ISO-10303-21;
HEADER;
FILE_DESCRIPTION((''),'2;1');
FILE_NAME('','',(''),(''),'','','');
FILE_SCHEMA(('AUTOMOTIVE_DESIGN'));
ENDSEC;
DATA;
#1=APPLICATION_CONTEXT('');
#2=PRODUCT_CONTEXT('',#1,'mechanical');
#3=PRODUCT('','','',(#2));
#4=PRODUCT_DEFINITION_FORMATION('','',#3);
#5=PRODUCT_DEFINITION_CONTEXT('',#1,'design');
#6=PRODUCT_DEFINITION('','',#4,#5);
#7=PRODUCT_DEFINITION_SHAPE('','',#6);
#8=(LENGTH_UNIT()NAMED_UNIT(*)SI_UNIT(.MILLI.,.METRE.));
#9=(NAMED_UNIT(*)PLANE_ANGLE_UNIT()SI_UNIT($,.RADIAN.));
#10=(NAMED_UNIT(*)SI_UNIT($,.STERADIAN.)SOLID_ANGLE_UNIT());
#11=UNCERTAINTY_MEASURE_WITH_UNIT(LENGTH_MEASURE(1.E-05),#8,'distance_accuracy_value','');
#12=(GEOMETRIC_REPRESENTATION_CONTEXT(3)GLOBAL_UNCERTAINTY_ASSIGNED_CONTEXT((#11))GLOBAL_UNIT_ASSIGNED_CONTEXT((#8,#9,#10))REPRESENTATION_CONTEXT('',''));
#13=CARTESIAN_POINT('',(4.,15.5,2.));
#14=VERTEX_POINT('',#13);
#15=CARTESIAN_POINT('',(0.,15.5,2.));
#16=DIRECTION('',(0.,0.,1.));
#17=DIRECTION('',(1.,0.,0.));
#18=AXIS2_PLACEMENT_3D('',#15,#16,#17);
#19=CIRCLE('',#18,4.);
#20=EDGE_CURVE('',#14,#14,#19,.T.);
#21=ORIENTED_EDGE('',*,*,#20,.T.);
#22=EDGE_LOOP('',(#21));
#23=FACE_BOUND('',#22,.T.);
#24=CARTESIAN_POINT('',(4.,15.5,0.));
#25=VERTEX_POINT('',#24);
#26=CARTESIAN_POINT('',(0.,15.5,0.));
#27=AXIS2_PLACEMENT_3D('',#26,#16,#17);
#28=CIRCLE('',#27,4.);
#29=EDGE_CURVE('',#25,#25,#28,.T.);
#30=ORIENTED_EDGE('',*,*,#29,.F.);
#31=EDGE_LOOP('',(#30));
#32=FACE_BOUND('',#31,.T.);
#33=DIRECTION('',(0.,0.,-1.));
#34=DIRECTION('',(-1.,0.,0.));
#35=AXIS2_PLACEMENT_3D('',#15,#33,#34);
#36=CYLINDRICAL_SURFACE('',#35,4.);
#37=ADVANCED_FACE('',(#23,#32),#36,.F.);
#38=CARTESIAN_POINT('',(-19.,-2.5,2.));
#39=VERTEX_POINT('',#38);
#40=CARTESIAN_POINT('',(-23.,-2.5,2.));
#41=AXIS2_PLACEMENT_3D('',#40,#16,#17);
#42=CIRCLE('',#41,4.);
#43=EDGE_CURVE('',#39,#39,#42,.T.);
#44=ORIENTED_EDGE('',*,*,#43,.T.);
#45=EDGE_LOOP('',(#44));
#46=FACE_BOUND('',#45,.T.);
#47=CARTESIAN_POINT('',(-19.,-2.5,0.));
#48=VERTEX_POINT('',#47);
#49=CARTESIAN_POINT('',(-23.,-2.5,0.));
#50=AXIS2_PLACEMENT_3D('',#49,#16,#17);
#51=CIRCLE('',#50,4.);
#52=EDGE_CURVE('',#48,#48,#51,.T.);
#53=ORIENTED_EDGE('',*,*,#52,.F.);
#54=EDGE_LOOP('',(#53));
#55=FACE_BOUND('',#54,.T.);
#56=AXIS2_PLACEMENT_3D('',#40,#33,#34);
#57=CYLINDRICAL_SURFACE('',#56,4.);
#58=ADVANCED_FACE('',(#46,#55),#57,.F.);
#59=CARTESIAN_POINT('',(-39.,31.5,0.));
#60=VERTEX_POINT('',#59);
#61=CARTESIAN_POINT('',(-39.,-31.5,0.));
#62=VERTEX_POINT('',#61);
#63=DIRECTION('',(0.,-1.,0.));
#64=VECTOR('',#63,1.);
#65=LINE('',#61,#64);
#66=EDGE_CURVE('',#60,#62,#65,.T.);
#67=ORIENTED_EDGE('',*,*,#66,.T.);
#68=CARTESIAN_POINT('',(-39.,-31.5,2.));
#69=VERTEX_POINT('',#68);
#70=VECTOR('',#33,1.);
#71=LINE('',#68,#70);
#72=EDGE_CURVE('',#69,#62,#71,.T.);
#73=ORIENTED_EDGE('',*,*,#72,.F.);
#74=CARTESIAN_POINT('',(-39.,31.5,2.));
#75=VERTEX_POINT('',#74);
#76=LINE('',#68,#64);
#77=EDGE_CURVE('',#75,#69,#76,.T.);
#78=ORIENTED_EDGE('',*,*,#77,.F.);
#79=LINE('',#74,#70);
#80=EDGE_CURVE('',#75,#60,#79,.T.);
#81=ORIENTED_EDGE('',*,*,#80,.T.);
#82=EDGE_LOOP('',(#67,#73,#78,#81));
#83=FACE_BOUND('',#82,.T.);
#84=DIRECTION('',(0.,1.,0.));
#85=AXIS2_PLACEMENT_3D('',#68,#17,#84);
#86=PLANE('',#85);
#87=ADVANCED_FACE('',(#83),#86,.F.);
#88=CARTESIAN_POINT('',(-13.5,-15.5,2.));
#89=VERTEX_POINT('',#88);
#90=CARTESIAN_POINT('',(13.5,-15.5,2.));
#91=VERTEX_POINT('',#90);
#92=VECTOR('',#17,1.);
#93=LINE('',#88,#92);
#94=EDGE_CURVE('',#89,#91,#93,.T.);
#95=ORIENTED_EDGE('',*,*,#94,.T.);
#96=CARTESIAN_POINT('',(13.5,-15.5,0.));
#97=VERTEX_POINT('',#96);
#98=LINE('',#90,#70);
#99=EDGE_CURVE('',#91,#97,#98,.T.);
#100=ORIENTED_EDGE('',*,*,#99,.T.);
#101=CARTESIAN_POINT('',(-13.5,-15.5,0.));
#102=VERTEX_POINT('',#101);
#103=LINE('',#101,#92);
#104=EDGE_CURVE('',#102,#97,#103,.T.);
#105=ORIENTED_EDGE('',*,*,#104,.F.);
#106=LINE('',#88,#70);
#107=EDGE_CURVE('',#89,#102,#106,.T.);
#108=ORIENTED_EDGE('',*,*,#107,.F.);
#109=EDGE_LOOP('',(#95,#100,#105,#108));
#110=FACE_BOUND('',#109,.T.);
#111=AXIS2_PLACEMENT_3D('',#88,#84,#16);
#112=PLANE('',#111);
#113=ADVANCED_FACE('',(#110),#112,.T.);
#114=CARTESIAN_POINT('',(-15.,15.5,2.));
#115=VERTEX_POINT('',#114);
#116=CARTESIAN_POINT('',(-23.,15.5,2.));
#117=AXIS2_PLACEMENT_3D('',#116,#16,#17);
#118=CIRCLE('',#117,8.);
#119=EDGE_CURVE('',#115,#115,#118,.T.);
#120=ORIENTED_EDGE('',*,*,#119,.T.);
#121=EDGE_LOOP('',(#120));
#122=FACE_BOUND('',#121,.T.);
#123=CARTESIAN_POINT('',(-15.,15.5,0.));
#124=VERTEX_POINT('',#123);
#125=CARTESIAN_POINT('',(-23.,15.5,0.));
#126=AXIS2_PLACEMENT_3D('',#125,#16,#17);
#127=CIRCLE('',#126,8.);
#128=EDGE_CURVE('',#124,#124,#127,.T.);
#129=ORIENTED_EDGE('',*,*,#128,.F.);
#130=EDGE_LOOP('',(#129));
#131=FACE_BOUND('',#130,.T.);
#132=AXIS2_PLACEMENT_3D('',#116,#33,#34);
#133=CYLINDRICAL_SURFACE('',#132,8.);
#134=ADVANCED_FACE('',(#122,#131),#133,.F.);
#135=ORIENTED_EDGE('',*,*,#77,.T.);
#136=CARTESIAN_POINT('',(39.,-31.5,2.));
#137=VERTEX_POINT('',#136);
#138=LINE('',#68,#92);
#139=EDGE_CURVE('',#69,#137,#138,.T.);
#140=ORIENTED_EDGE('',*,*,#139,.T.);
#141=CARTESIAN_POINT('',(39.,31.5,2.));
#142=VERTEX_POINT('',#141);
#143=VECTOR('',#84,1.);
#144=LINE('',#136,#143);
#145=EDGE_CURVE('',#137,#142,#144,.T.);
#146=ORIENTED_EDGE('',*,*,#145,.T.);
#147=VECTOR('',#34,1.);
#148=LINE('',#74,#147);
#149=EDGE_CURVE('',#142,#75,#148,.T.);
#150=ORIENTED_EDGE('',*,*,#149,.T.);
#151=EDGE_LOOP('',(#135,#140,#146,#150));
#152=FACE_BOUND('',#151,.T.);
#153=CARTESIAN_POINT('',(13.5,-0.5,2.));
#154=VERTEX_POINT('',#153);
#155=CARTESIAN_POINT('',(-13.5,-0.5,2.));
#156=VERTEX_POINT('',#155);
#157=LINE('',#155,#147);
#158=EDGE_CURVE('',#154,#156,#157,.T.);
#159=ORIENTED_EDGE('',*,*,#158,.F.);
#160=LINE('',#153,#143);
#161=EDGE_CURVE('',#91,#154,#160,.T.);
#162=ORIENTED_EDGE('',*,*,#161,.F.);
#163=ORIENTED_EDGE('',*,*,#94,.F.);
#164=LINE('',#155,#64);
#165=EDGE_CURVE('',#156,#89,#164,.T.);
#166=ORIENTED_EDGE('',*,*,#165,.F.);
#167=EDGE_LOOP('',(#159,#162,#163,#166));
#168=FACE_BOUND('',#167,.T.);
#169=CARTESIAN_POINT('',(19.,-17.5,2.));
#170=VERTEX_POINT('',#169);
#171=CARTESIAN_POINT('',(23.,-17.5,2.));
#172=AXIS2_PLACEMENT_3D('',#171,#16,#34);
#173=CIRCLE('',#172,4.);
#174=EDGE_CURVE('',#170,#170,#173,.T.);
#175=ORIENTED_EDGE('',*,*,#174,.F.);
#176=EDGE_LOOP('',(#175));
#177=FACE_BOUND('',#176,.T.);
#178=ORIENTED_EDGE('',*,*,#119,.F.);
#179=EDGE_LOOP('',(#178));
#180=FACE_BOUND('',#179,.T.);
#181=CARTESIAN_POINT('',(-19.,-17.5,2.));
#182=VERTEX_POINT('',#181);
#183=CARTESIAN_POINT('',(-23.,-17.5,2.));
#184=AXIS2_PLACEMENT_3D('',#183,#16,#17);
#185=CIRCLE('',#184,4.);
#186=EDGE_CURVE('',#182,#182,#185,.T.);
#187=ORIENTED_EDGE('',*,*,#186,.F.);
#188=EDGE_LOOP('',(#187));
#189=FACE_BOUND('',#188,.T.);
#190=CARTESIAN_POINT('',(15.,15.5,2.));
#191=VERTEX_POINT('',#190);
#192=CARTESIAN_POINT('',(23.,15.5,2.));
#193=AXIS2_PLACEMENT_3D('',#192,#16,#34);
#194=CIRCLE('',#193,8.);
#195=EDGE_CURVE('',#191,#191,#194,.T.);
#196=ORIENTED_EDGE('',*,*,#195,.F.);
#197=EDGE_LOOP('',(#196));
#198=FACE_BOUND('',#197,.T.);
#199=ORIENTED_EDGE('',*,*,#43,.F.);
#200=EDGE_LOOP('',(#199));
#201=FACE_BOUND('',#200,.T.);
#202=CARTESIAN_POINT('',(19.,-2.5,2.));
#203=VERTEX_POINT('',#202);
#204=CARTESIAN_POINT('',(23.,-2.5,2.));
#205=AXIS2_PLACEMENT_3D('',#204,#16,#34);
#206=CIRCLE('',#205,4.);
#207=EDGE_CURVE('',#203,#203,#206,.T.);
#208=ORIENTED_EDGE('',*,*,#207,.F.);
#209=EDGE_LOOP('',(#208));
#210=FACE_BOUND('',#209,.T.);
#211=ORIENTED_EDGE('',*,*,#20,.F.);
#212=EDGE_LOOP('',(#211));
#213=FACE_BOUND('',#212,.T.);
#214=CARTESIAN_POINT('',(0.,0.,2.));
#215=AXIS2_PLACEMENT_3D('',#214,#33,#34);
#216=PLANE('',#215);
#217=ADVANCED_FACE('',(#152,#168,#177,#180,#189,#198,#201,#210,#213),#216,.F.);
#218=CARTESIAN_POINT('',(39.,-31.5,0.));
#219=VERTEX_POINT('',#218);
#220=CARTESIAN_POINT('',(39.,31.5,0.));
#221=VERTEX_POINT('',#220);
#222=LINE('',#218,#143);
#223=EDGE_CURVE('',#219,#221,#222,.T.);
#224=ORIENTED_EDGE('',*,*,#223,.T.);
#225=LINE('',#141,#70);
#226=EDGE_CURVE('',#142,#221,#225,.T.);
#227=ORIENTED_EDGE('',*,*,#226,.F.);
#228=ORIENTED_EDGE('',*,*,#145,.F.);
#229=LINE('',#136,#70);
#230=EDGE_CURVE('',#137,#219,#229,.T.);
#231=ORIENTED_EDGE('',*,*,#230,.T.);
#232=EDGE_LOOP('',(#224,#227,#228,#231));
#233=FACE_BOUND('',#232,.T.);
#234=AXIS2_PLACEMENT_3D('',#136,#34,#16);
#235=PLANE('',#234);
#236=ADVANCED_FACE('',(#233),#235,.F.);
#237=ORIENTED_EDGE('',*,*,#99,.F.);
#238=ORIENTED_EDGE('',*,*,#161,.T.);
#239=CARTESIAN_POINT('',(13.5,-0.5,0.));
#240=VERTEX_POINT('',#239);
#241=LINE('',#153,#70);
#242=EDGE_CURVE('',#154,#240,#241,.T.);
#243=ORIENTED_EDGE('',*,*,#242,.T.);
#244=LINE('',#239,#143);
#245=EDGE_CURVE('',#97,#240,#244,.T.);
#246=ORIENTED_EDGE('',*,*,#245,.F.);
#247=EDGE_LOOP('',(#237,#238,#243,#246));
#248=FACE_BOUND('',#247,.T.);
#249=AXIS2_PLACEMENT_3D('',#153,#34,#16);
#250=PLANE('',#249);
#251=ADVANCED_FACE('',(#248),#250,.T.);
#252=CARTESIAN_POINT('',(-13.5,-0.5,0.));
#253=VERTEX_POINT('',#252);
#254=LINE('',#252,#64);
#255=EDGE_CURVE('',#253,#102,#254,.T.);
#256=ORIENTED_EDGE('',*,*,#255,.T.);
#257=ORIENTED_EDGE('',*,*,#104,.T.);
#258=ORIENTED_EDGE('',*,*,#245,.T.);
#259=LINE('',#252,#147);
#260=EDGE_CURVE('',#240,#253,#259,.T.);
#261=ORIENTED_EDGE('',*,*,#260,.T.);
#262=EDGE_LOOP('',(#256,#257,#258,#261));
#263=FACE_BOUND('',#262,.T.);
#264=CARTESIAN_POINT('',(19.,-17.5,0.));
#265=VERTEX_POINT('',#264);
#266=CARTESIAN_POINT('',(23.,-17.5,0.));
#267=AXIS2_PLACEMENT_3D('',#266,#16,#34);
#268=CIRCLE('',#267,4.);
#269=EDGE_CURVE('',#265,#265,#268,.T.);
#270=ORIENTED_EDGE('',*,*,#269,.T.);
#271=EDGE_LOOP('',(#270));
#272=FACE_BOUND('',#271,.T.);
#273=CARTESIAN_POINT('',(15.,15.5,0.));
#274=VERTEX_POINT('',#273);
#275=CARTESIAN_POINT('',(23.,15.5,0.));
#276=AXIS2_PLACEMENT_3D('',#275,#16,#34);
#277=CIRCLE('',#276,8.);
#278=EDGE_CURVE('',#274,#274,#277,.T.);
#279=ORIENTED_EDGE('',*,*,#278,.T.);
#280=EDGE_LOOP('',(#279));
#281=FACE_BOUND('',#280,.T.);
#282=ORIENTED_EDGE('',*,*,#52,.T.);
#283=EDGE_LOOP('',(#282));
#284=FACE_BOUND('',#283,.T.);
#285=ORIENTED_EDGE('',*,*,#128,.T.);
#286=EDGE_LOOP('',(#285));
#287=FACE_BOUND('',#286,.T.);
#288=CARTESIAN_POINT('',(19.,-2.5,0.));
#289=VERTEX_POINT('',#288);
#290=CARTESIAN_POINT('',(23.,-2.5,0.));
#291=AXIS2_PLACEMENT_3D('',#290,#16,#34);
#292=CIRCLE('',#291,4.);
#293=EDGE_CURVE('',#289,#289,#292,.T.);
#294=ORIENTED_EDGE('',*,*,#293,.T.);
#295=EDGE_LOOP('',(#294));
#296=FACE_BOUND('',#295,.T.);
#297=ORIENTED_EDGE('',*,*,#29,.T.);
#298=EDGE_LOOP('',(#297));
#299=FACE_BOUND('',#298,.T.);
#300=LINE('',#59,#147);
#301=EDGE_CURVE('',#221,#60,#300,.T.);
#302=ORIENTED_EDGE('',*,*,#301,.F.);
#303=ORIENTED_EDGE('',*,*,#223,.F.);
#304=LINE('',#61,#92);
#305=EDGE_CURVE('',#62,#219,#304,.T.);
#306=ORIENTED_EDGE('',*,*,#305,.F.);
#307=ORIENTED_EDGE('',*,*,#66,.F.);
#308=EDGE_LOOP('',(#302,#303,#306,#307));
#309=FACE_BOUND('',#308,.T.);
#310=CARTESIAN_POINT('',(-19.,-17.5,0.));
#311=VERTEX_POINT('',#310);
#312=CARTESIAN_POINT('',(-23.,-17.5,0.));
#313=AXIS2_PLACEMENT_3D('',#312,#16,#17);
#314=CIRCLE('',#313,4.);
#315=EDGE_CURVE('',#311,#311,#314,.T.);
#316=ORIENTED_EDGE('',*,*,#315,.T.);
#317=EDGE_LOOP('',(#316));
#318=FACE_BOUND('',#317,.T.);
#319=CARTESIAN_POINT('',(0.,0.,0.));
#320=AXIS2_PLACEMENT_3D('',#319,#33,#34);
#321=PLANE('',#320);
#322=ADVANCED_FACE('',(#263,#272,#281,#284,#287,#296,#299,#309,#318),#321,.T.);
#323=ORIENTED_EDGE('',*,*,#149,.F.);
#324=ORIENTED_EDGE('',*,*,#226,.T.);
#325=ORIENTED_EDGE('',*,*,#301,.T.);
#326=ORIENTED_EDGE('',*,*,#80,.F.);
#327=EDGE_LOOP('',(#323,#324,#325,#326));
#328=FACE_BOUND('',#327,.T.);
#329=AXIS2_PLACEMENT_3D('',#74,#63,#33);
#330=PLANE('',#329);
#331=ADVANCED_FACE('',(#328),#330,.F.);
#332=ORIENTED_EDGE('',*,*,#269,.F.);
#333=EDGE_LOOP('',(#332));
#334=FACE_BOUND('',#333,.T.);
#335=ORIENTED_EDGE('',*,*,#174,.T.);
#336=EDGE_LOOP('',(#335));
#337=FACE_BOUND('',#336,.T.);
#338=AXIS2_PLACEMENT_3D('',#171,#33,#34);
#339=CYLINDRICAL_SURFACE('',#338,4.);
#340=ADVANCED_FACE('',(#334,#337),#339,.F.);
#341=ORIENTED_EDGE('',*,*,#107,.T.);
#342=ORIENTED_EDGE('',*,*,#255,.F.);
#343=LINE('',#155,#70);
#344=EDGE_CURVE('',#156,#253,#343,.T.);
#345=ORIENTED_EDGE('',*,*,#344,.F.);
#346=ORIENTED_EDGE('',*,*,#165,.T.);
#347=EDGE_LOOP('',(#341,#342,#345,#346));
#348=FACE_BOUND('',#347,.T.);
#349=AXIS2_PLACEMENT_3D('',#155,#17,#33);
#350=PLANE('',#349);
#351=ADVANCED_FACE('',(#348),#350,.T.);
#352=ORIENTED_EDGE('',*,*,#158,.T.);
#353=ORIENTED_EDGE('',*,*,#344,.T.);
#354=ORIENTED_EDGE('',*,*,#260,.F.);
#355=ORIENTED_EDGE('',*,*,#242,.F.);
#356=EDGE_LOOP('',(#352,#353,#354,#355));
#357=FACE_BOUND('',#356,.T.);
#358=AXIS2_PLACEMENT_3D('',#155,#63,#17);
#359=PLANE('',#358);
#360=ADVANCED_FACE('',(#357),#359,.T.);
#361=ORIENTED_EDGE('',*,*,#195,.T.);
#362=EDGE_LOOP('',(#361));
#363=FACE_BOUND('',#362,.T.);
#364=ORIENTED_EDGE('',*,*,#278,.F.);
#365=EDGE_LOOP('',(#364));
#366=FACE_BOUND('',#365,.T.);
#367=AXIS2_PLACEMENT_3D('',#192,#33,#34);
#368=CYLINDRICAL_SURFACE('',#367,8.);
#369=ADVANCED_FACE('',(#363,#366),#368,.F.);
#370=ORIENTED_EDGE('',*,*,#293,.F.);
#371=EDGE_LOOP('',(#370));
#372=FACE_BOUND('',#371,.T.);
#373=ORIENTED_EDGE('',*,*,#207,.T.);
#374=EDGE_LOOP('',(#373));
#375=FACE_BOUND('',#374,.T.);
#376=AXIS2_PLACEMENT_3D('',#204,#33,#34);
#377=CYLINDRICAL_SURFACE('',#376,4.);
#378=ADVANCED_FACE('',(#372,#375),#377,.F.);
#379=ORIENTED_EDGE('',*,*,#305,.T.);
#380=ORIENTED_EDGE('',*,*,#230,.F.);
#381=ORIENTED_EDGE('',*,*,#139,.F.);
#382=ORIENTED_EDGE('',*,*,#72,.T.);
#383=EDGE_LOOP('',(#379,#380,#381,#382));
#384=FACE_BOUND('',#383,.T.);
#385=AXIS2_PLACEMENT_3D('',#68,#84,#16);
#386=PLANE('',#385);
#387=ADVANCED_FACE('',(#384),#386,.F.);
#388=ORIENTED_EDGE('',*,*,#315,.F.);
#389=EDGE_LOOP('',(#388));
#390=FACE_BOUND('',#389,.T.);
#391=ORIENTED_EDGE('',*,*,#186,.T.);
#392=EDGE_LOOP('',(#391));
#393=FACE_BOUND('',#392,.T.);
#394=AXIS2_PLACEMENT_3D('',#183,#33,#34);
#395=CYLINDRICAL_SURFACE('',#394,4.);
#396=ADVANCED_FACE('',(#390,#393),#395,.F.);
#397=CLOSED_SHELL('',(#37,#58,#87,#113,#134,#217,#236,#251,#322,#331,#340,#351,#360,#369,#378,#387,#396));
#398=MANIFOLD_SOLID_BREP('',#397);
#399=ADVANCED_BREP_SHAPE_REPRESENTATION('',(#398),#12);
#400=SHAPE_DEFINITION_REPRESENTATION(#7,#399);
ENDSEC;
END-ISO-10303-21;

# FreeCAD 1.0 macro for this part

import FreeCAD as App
import Part
import Sketcher

V = App.Vector
Q = App.Units.Quantity

doc = App.newDocument("Part")
body = doc.addObject("PartDesign::Body", "Body")

sketch1 = doc.addObject("Sketcher::SketchObject", "Sketch")
body.addObject(sketch1)
sketch1.AttachmentSupport = (doc.XY_Plane, [""])
sketch1.MapMode = "FlatFace"
sketch1.addGeometry([
    Part.LineSegment(V(-39, 31.5, 0), V(-39, -31.5, 0)),
    Part.LineSegment(V(-39, -31.5, 0), V(39, -31.5, 0)),
    Part.LineSegment(V(39, -31.5, 0), V(39, 31.5, 0)),
    Part.LineSegment(V(39, 31.5, 0), V(-39, 31.5, 0)),
    Part.Circle(V(-23, -17.5, 0), V(0, 0, 1), 4),
    Part.Circle(V(-23, -2.5, 0), V(0, 0, 1), 4),
    Part.Circle(V(23, -17.5, 0), V(0, 0, 1), 4),
    Part.LineSegment(V(13.5, -15.5, 0), V(-13.5, -15.5, 0)),
    Part.LineSegment(V(-13.5, -15.5, 0), V(-13.5, -0.5, 0)),
    Part.LineSegment(V(-13.5, -0.5, 0), V(13.5, -0.5, 0)),
    Part.LineSegment(V(13.5, -0.5, 0), V(13.5, -15.5, 0)),
    Part.Circle(V(23, -2.5, 0), V(0, 0, 1), 4),
    Part.Circle(V(-23, 15.5, 0), V(0, 0, 1), 8),
    Part.Circle(V(0, 15.5, 0), V(0, 0, 1), 4),
    Part.Circle(V(23, 15.5, 0), V(0, 0, 1), 8),
], False)
sketch1.addConstraint([
    Sketcher.Constraint("Coincident", 0, 2, 1, 1),
    Sketcher.Constraint("Coincident", 1, 2, 2, 1),
    Sketcher.Constraint("Coincident", 2, 2, 3, 1),
    Sketcher.Constraint("Coincident", 3, 2, 0, 1),
    Sketcher.Constraint("Coincident", 7, 2, 8, 1),
    Sketcher.Constraint("Coincident", 8, 2, 9, 1),
    Sketcher.Constraint("Coincident", 9, 2, 10, 1),
    Sketcher.Constraint("Coincident", 10, 2, 7, 1),
    Sketcher.Constraint("Vertical", 0),
    Sketcher.Constraint("Horizontal", 1),
    Sketcher.Constraint("Vertical", 2),
    Sketcher.Constraint("Horizontal", 3),
    Sketcher.Constraint("Horizontal", 7),
    Sketcher.Constraint("Vertical", 8),
    Sketcher.Constraint("Horizontal", 9),
    Sketcher.Constraint("Vertical", 10),
    Sketcher.Constraint("Equal", 4, 5),
    Sketcher.Constraint("Equal", 5, 6),
    Sketcher.Constraint("Equal", 6, 11),
    Sketcher.Constraint("Equal", 11, 13),
    Sketcher.Constraint("Equal", 12, 14),
    Sketcher.Constraint("Symmetric", 0, 2, 2, 2, -1, 1),
    Sketcher.Constraint("Symmetric", 4, 3, 6, 3, -2),
    Sketcher.Constraint("Symmetric", 5, 3, 11, 3, -2),
    Sketcher.Constraint("Symmetric", 12, 3, 14, 3, -2),
    Sketcher.Constraint("PointOnObject", 13, 3, -2),
    Sketcher.Constraint("Horizontal", 12, 3, 13, 3),
    Sketcher.Constraint("Vertical", 4, 3, 5, 3),
    Sketcher.Constraint("Vertical", 5, 3, 12, 3),
    Sketcher.Constraint("Diameter", 4, Q("8 mm")),
    Sketcher.Constraint("Diameter", 12, Q("16 mm")),
    Sketcher.Constraint("DistanceX", 1, 1, 1, 2, Q("78 mm")),
    Sketcher.Constraint("DistanceX", 7, 2, 7, 1, Q("27 mm")),
    Sketcher.Constraint("DistanceY", 0, 2, 0, 1, Q("63 mm")),
    Sketcher.Constraint("DistanceY", 8, 1, 8, 2, Q("15 mm")),
    Sketcher.Constraint("DistanceX", 4, 3, -1, 1, Q("23 mm")),
    Sketcher.Constraint("DistanceY", 4, 3, 5, 3, Q("15 mm")),
    Sketcher.Constraint("DistanceY", 5, 3, 12, 3, Q("18 mm")),
    Sketcher.Constraint("DistanceY", 0, 2, 4, 3, Q("14 mm")),
    Sketcher.Constraint("DistanceY", 4, 3, 7, 2, Q("2 mm")),
    Sketcher.Constraint("DistanceX", 7, 2, -1, 1, Q("13.5 mm")),
])
pad1 = doc.addObject("PartDesign::Pad", "Pad")
body.addObject(pad1)
pad1.Profile = sketch1
pad1.Length = 2

doc.recompute()
